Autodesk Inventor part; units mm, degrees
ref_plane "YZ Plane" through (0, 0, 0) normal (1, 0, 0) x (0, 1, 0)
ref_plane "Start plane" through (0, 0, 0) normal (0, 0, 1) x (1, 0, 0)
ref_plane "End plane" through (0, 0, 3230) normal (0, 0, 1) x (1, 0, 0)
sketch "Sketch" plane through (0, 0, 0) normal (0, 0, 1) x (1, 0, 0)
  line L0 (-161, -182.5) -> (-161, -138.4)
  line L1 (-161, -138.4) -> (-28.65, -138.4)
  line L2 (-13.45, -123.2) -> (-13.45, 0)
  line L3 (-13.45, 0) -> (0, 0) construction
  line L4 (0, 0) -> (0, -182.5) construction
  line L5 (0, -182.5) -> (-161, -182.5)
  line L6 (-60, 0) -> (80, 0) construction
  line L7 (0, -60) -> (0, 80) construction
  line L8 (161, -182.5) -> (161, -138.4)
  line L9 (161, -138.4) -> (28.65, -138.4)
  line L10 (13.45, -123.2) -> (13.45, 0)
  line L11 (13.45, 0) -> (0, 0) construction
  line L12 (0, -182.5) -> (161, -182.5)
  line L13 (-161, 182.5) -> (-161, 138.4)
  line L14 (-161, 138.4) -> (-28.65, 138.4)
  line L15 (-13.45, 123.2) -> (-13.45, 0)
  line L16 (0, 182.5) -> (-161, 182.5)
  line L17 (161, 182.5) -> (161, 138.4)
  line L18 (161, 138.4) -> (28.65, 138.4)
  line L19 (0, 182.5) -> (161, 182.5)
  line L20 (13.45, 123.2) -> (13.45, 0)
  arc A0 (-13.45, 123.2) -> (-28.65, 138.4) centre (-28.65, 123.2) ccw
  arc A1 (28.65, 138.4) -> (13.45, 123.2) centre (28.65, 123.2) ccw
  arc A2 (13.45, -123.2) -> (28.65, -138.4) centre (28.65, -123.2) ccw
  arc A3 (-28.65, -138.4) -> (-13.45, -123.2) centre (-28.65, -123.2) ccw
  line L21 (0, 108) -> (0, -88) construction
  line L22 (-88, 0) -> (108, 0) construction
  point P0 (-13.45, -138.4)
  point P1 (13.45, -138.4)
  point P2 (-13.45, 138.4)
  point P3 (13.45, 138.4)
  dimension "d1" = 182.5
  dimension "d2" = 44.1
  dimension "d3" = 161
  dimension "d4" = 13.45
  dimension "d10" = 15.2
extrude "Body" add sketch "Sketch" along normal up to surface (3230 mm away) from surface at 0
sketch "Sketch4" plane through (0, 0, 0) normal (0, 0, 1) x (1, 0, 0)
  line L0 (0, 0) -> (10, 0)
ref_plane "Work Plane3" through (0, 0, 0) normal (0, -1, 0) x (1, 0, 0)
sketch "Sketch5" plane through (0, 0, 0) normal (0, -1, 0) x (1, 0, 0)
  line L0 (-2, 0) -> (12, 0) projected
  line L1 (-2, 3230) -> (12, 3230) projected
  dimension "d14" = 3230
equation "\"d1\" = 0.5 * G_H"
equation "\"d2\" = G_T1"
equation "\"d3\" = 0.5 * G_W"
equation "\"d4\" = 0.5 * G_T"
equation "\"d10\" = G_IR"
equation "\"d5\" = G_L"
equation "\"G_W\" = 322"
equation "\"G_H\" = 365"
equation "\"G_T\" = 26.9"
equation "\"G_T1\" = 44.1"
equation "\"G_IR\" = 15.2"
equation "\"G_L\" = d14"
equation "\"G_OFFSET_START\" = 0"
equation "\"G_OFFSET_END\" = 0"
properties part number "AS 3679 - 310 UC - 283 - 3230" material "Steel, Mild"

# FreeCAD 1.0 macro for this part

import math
import FreeCAD as App
import Part
import Sketcher
from FreeCAD import Vector

doc = App.newDocument("Part")
body = doc.addObject("PartDesign::Body", "Body")

# Sketch on XY plane
sketch1 = doc.addObject("Sketcher::SketchObject", "Sketch")
body.addObject(sketch1)
sketch1.AttachmentSupport = (doc.XY_Plane, [""])
sketch1.MapMode = "FlatFace"
sketch1.addGeometry(Part.LineSegment(Vector(-161, -138, 0), Vector(-161, -182, 0)), False)
sketch1.addGeometry(Part.LineSegment(Vector(-161, -182, 0), Vector(161, -182, 0)), False)
sketch1.addGeometry(Part.LineSegment(Vector(161, -182, 0), Vector(161, -138, 0)), False)
sketch1.addGeometry(Part.LineSegment(Vector(161, -138, 0), Vector(29, -138, 0)), False)
sketch1.addGeometry(Part.ArcOfCircle(Part.Circle(Vector(29, -123, 0), Vector(0, 0, 1), 15), math.radians(180), math.radians(270)), False)
sketch1.addGeometry(Part.LineSegment(Vector(13, -123, 0), Vector(13, 123, 0)), False)
sketch1.addGeometry(Part.ArcOfCircle(Part.Circle(Vector(29, 123, 0), Vector(0, 0, 1), 15), math.radians(90), math.radians(180)), False)
sketch1.addGeometry(Part.LineSegment(Vector(29, 138, 0), Vector(161, 138, 0)), False)
sketch1.addGeometry(Part.LineSegment(Vector(161, 138, 0), Vector(161, 182, 0)), False)
sketch1.addGeometry(Part.LineSegment(Vector(161, 182, 0), Vector(-161, 182, 0)), False)
sketch1.addGeometry(Part.LineSegment(Vector(-161, 182, 0), Vector(-161, 138, 0)), False)
sketch1.addGeometry(Part.LineSegment(Vector(-161, 138, 0), Vector(-29, 138, 0)), False)
sketch1.addGeometry(Part.ArcOfCircle(Part.Circle(Vector(-29, 123, 0), Vector(0, 0, 1), 15), math.radians(0), math.radians(90)), False)
sketch1.addGeometry(Part.LineSegment(Vector(-13, 123, 0), Vector(-13, -123, 0)), False)
sketch1.addGeometry(Part.ArcOfCircle(Part.Circle(Vector(-29, -123, 0), Vector(0, 0, 1), 15), math.radians(-90), math.radians(0)), False)
sketch1.addGeometry(Part.LineSegment(Vector(-29, -138, 0), Vector(-161, -138, 0)), False)
sketch1.addConstraint(Sketcher.Constraint("Coincident", 0, 2, 1, 1))
sketch1.addConstraint(Sketcher.Constraint("Coincident", 1, 2, 2, 1))
sketch1.addConstraint(Sketcher.Constraint("Coincident", 2, 2, 3, 1))
sketch1.addConstraint(Sketcher.Constraint("Tangent", 3, 2, 4, 2))
sketch1.addConstraint(Sketcher.Constraint("Tangent", 4, 1, 5, 1))
sketch1.addConstraint(Sketcher.Constraint("Tangent", 5, 2, 6, 2))
sketch1.addConstraint(Sketcher.Constraint("Tangent", 6, 1, 7, 1))
sketch1.addConstraint(Sketcher.Constraint("Coincident", 7, 2, 8, 1))
sketch1.addConstraint(Sketcher.Constraint("Coincident", 8, 2, 9, 1))
sketch1.addConstraint(Sketcher.Constraint("Coincident", 9, 2, 10, 1))
sketch1.addConstraint(Sketcher.Constraint("Coincident", 10, 2, 11, 1))
sketch1.addConstraint(Sketcher.Constraint("Tangent", 11, 2, 12, 2))
sketch1.addConstraint(Sketcher.Constraint("Tangent", 12, 1, 13, 1))
sketch1.addConstraint(Sketcher.Constraint("Tangent", 13, 2, 14, 2))
sketch1.addConstraint(Sketcher.Constraint("Tangent", 14, 1, 15, 1))
sketch1.addConstraint(Sketcher.Constraint("Coincident", 15, 2, 0, 1))
sketch1.addConstraint(Sketcher.Constraint("Vertical", 0))
sketch1.addConstraint(Sketcher.Constraint("Horizontal", 1))
sketch1.addConstraint(Sketcher.Constraint("Vertical", 2))
sketch1.addConstraint(Sketcher.Constraint("Horizontal", 3))
sketch1.addConstraint(Sketcher.Constraint("Vertical", 5))
sketch1.addConstraint(Sketcher.Constraint("Horizontal", 7))
sketch1.addConstraint(Sketcher.Constraint("Vertical", 8))
sketch1.addConstraint(Sketcher.Constraint("Horizontal", 9))
sketch1.addConstraint(Sketcher.Constraint("Vertical", 10))
sketch1.addConstraint(Sketcher.Constraint("Horizontal", 11))
sketch1.addConstraint(Sketcher.Constraint("Vertical", 13))
sketch1.addConstraint(Sketcher.Constraint("Horizontal", 15))
sketch1.addConstraint(Sketcher.Constraint("Equal", 4, 6))
sketch1.addConstraint(Sketcher.Constraint("Equal", 6, 12))
sketch1.addConstraint(Sketcher.Constraint("Equal", 12, 14))
sketch1.addConstraint(Sketcher.Constraint("Symmetric", 4, 3, 12, 3, -1, 1))
sketch1.addConstraint(Sketcher.Constraint("Symmetric", 0, 2, 8, 2, -1, 1))
sketch1.addConstraint(Sketcher.Constraint("Symmetric", 7, 2, 10, 2, -2))
sketch1.addConstraint(Sketcher.Constraint("Symmetric", 2, 2, 15, 2, -2))
sketch1.addConstraint(Sketcher.Constraint("Radius", 4, 15.2))
sketch1.addConstraint(Sketcher.Constraint("DistanceY", 0, 2, 0, 1, 44.1))
sketch1.addConstraint(Sketcher.Constraint("DistanceX", 0, 2, -1, 1, 161.0))
sketch1.addConstraint(Sketcher.Constraint("DistanceY", 0, 2, -1, 1, 182.5))
sketch1.addConstraint(Sketcher.Constraint("DistanceX", -1, 1, 4, 1, 13.45))
pad1 = doc.addObject("PartDesign::Pad", "Pad")
body.addObject(pad1)
pad1.Profile = sketch1
pad1.Length = 3230

doc.recompute()
